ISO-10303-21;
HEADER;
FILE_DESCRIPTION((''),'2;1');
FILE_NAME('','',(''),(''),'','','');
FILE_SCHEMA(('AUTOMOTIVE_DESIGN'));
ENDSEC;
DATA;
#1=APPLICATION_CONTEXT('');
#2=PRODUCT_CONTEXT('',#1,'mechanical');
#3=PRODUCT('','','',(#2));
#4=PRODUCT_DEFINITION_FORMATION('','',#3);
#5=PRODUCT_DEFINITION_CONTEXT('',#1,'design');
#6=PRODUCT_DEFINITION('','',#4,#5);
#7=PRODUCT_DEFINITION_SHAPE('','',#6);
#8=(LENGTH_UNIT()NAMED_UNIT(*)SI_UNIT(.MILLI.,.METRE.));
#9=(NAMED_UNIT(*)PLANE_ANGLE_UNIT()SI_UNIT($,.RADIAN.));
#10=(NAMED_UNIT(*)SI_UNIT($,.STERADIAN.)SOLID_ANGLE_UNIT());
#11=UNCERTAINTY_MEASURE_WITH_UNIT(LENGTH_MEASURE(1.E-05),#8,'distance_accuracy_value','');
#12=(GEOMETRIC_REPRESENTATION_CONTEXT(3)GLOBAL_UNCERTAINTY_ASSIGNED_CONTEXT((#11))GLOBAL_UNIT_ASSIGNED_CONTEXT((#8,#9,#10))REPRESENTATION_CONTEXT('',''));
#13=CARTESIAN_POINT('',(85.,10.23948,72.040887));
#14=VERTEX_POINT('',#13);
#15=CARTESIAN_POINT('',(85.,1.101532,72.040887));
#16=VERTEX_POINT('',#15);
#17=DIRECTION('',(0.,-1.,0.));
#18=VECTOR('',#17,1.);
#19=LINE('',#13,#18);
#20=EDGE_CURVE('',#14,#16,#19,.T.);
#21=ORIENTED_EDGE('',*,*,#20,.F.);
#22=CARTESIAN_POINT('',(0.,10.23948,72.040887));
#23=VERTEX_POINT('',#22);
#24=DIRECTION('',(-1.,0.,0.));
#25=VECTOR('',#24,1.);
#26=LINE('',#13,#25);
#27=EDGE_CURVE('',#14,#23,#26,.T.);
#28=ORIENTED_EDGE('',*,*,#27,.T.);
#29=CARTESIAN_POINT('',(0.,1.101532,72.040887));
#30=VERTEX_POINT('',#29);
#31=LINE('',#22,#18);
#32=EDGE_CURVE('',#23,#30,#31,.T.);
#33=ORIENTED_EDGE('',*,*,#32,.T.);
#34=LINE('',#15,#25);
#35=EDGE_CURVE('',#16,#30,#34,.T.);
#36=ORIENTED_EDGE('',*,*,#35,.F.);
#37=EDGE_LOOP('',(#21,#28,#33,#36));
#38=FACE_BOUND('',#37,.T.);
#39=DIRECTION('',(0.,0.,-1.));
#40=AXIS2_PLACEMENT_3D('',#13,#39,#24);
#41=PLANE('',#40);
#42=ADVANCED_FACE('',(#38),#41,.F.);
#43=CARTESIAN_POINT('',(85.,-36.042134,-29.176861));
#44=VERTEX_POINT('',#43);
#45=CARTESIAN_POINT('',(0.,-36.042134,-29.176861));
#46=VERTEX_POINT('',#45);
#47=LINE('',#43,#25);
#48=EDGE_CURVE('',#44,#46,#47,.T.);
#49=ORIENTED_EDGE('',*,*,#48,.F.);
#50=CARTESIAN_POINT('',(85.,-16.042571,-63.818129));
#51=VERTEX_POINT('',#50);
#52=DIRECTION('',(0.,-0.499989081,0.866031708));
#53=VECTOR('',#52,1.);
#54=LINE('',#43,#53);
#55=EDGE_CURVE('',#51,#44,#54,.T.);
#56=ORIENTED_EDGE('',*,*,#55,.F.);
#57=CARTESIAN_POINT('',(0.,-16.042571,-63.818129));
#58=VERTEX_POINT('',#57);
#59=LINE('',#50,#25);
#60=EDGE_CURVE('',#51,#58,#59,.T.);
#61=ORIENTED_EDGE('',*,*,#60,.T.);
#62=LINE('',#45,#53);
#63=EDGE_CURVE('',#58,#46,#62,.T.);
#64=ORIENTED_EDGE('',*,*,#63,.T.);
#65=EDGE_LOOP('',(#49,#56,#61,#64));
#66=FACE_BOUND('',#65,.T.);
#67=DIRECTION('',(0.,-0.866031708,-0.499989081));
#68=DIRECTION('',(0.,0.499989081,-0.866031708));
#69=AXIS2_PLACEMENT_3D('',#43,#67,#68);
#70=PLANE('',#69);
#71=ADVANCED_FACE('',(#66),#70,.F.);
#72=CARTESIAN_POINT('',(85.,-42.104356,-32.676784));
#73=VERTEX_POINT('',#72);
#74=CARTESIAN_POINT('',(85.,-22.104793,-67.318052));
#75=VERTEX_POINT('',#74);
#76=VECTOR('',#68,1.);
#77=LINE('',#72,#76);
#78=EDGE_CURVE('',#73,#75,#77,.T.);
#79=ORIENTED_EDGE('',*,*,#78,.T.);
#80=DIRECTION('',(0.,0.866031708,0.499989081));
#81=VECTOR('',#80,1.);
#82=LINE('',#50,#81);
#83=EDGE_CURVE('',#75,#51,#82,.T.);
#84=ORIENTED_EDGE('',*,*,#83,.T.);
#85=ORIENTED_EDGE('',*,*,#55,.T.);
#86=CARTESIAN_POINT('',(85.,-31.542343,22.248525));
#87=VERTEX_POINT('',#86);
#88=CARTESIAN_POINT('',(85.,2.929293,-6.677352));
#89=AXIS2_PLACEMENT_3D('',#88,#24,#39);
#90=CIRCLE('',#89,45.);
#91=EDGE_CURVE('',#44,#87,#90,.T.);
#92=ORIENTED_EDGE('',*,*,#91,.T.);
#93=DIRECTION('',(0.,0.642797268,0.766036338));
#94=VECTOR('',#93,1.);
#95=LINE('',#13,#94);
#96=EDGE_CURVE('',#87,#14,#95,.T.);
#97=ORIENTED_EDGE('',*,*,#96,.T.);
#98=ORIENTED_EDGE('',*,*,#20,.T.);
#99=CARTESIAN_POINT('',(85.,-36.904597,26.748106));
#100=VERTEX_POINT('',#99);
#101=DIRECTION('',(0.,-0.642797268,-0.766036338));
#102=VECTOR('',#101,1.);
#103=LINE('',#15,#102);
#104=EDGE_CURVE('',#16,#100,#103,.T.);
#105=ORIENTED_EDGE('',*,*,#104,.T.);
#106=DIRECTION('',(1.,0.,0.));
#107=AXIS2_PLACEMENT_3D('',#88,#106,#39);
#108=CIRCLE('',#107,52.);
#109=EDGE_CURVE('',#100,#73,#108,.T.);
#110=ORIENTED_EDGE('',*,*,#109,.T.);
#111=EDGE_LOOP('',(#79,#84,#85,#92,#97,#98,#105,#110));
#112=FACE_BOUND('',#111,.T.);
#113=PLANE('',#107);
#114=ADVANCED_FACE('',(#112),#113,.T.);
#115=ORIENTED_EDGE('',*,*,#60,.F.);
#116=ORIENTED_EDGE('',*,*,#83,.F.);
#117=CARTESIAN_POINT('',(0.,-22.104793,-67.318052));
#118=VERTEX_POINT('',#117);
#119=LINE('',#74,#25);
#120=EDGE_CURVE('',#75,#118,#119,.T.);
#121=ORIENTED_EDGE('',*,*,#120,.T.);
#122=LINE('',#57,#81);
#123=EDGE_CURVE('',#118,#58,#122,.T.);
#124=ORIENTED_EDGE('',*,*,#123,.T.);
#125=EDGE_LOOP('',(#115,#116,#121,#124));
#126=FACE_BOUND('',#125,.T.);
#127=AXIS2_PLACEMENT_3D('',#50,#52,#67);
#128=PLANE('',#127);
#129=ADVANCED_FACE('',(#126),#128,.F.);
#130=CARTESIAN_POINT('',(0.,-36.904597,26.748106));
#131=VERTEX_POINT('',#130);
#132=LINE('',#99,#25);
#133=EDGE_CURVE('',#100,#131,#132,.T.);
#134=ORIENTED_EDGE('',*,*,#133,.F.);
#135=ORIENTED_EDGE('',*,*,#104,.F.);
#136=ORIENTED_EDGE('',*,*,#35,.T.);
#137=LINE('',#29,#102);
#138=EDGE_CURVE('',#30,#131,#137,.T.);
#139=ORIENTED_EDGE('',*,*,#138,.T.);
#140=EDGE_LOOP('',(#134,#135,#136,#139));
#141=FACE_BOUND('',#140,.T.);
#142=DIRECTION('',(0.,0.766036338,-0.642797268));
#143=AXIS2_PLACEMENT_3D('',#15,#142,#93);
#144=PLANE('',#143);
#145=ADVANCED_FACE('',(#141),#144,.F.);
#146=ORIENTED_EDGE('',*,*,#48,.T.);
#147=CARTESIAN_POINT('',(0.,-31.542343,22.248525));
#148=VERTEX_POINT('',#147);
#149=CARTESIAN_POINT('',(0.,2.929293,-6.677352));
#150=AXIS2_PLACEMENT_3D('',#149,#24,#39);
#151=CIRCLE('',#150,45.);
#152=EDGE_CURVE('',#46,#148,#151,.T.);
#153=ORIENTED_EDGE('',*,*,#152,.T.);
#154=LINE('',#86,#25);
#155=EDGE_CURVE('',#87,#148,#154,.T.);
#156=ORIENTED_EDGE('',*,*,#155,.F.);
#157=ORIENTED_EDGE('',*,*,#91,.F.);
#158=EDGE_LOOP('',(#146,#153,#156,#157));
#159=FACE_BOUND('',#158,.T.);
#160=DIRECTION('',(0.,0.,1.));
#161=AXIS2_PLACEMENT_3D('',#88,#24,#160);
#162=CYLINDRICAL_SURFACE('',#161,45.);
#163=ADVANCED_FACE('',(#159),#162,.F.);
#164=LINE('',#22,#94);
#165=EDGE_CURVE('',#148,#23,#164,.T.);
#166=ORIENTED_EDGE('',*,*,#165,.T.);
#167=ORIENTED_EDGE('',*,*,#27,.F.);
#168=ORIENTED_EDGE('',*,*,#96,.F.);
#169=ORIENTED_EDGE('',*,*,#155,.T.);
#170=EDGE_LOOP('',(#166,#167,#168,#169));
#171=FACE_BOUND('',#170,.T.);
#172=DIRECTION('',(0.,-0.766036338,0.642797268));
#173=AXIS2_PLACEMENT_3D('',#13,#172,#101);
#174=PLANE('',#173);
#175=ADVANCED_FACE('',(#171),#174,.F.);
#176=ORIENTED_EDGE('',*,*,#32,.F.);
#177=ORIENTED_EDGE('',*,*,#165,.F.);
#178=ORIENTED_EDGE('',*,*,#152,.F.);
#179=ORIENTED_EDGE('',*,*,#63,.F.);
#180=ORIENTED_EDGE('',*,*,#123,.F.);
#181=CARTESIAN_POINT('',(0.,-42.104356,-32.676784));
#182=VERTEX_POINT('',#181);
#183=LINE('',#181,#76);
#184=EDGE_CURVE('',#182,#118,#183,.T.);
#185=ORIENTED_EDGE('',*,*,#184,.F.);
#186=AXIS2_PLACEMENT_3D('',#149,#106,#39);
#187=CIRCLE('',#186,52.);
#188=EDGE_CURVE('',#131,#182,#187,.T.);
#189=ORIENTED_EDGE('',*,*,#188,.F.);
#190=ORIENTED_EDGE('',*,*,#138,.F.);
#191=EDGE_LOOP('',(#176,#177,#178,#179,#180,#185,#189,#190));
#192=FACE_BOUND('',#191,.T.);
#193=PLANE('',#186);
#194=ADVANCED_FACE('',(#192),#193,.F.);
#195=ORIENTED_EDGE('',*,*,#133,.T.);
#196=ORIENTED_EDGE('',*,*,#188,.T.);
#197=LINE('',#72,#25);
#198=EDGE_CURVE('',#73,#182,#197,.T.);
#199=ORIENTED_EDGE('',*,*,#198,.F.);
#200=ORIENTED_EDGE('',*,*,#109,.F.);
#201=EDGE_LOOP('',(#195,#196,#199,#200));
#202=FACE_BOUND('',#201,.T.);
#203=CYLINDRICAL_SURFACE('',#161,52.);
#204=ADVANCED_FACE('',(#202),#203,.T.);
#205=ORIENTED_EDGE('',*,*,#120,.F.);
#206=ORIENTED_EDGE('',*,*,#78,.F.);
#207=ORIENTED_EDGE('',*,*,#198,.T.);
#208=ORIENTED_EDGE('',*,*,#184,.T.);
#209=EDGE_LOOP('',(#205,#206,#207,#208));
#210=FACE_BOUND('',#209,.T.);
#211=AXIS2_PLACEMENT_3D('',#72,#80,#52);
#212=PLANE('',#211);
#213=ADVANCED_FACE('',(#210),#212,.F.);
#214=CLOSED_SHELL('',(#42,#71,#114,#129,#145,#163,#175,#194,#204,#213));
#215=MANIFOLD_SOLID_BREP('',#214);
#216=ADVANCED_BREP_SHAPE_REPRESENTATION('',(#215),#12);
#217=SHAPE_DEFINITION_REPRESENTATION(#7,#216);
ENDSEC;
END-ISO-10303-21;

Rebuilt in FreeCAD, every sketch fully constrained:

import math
import FreeCAD as App
import Part
import Sketcher

doc = App.newDocument("Part")
body = doc.addObject("PartDesign::Body", "Body")

# Sketch on YZ plane
sketch1 = body.newObject("Sketcher::SketchObject", "Sketch")
sketch1.AttachmentSupport = (doc.getObject("YZ_Plane"), [""])
sketch1.MapMode = "FlatFace"
sketch1.addGeometry(Part.LineSegment(App.Vector(-32, 22, 0), App.Vector(10, 72, 0)), False)
sketch1.addGeometry(Part.LineSegment(App.Vector(10, 72, 0), App.Vector(1, 72, 0)), False)
sketch1.addGeometry(Part.LineSegment(App.Vector(1, 72, 0), App.Vector(-37, 27, 0)), False)
sketch1.addGeometry(Part.ArcOfCircle(Part.Circle(App.Vector(3, -7, 0), App.Vector(0, 0, 1), 52), math.radians(140), math.radians(210)), False)
sketch1.addGeometry(Part.LineSegment(App.Vector(-42, -33, 0), App.Vector(-22, -67, 0)), False)
sketch1.addGeometry(Part.LineSegment(App.Vector(-22, -67, 0), App.Vector(-16, -64, 0)), False)
sketch1.addGeometry(Part.LineSegment(App.Vector(-16, -64, 0), App.Vector(-36, -29, 0)), False)
sketch1.addGeometry(Part.ArcOfCircle(Part.Circle(App.Vector(3, -7, 0), App.Vector(0, 0, 1), 45), math.radians(140), math.radians(210)), False)
sketch1.addConstraint(Sketcher.Constraint("Coincident", 0, 2, 1, 1))
sketch1.addConstraint(Sketcher.Constraint("Coincident", 1, 2, 2, 1))
sketch1.addConstraint(Sketcher.Constraint("Tangent", 2, 2, 3, 1))
sketch1.addConstraint(Sketcher.Constraint("Tangent", 3, 2, 4, 1))
sketch1.addConstraint(Sketcher.Constraint("Coincident", 4, 2, 5, 1))
sketch1.addConstraint(Sketcher.Constraint("Coincident", 5, 2, 6, 1))
sketch1.addConstraint(Sketcher.Constraint("Tangent", 6, 2, 7, 2))
sketch1.addConstraint(Sketcher.Constraint("Tangent", 7, 1, 0, 1))
sketch1.addConstraint(Sketcher.Constraint("Horizontal", 1))
sketch1.addConstraint(Sketcher.Constraint("Coincident", 7, 3, 3, 3))
sketch1.addConstraint(Sketcher.Constraint("Parallel", 0, 2))
sketch1.addConstraint(Sketcher.Constraint("Perpendicular", 4, 5))
sketch1.addConstraint(Sketcher.Constraint("Perpendicular", 5, 6))
sketch1.addConstraint(Sketcher.Constraint("Radius", 3, 52.0))
sketch1.addConstraint(Sketcher.Constraint("Radius", 7, 45.0))
sketch1.addConstraint(Sketcher.Constraint("Distance", 0, 65.0))
sketch1.addConstraint(Sketcher.Constraint("Distance", 4, 40.0))
sketch1.addConstraint(Sketcher.Constraint("DistanceY", 4, 2, 3, 3, 60.640701))
sketch1.addConstraint(Sketcher.Constraint("DistanceX", 1, 2, 1, 1, 9.137948))
sketch1.addConstraint(Sketcher.Constraint("DistanceY", 3, 3, -1, 1, 6.677352))
sketch1.addConstraint(Sketcher.Constraint("DistanceX", -1, 1, 0, 2, 10.23948))
pad1 = body.newObject("PartDesign::Pad", "Pad")
pad1.Profile = sketch1
pad1.Length = 85

doc.recompute()
